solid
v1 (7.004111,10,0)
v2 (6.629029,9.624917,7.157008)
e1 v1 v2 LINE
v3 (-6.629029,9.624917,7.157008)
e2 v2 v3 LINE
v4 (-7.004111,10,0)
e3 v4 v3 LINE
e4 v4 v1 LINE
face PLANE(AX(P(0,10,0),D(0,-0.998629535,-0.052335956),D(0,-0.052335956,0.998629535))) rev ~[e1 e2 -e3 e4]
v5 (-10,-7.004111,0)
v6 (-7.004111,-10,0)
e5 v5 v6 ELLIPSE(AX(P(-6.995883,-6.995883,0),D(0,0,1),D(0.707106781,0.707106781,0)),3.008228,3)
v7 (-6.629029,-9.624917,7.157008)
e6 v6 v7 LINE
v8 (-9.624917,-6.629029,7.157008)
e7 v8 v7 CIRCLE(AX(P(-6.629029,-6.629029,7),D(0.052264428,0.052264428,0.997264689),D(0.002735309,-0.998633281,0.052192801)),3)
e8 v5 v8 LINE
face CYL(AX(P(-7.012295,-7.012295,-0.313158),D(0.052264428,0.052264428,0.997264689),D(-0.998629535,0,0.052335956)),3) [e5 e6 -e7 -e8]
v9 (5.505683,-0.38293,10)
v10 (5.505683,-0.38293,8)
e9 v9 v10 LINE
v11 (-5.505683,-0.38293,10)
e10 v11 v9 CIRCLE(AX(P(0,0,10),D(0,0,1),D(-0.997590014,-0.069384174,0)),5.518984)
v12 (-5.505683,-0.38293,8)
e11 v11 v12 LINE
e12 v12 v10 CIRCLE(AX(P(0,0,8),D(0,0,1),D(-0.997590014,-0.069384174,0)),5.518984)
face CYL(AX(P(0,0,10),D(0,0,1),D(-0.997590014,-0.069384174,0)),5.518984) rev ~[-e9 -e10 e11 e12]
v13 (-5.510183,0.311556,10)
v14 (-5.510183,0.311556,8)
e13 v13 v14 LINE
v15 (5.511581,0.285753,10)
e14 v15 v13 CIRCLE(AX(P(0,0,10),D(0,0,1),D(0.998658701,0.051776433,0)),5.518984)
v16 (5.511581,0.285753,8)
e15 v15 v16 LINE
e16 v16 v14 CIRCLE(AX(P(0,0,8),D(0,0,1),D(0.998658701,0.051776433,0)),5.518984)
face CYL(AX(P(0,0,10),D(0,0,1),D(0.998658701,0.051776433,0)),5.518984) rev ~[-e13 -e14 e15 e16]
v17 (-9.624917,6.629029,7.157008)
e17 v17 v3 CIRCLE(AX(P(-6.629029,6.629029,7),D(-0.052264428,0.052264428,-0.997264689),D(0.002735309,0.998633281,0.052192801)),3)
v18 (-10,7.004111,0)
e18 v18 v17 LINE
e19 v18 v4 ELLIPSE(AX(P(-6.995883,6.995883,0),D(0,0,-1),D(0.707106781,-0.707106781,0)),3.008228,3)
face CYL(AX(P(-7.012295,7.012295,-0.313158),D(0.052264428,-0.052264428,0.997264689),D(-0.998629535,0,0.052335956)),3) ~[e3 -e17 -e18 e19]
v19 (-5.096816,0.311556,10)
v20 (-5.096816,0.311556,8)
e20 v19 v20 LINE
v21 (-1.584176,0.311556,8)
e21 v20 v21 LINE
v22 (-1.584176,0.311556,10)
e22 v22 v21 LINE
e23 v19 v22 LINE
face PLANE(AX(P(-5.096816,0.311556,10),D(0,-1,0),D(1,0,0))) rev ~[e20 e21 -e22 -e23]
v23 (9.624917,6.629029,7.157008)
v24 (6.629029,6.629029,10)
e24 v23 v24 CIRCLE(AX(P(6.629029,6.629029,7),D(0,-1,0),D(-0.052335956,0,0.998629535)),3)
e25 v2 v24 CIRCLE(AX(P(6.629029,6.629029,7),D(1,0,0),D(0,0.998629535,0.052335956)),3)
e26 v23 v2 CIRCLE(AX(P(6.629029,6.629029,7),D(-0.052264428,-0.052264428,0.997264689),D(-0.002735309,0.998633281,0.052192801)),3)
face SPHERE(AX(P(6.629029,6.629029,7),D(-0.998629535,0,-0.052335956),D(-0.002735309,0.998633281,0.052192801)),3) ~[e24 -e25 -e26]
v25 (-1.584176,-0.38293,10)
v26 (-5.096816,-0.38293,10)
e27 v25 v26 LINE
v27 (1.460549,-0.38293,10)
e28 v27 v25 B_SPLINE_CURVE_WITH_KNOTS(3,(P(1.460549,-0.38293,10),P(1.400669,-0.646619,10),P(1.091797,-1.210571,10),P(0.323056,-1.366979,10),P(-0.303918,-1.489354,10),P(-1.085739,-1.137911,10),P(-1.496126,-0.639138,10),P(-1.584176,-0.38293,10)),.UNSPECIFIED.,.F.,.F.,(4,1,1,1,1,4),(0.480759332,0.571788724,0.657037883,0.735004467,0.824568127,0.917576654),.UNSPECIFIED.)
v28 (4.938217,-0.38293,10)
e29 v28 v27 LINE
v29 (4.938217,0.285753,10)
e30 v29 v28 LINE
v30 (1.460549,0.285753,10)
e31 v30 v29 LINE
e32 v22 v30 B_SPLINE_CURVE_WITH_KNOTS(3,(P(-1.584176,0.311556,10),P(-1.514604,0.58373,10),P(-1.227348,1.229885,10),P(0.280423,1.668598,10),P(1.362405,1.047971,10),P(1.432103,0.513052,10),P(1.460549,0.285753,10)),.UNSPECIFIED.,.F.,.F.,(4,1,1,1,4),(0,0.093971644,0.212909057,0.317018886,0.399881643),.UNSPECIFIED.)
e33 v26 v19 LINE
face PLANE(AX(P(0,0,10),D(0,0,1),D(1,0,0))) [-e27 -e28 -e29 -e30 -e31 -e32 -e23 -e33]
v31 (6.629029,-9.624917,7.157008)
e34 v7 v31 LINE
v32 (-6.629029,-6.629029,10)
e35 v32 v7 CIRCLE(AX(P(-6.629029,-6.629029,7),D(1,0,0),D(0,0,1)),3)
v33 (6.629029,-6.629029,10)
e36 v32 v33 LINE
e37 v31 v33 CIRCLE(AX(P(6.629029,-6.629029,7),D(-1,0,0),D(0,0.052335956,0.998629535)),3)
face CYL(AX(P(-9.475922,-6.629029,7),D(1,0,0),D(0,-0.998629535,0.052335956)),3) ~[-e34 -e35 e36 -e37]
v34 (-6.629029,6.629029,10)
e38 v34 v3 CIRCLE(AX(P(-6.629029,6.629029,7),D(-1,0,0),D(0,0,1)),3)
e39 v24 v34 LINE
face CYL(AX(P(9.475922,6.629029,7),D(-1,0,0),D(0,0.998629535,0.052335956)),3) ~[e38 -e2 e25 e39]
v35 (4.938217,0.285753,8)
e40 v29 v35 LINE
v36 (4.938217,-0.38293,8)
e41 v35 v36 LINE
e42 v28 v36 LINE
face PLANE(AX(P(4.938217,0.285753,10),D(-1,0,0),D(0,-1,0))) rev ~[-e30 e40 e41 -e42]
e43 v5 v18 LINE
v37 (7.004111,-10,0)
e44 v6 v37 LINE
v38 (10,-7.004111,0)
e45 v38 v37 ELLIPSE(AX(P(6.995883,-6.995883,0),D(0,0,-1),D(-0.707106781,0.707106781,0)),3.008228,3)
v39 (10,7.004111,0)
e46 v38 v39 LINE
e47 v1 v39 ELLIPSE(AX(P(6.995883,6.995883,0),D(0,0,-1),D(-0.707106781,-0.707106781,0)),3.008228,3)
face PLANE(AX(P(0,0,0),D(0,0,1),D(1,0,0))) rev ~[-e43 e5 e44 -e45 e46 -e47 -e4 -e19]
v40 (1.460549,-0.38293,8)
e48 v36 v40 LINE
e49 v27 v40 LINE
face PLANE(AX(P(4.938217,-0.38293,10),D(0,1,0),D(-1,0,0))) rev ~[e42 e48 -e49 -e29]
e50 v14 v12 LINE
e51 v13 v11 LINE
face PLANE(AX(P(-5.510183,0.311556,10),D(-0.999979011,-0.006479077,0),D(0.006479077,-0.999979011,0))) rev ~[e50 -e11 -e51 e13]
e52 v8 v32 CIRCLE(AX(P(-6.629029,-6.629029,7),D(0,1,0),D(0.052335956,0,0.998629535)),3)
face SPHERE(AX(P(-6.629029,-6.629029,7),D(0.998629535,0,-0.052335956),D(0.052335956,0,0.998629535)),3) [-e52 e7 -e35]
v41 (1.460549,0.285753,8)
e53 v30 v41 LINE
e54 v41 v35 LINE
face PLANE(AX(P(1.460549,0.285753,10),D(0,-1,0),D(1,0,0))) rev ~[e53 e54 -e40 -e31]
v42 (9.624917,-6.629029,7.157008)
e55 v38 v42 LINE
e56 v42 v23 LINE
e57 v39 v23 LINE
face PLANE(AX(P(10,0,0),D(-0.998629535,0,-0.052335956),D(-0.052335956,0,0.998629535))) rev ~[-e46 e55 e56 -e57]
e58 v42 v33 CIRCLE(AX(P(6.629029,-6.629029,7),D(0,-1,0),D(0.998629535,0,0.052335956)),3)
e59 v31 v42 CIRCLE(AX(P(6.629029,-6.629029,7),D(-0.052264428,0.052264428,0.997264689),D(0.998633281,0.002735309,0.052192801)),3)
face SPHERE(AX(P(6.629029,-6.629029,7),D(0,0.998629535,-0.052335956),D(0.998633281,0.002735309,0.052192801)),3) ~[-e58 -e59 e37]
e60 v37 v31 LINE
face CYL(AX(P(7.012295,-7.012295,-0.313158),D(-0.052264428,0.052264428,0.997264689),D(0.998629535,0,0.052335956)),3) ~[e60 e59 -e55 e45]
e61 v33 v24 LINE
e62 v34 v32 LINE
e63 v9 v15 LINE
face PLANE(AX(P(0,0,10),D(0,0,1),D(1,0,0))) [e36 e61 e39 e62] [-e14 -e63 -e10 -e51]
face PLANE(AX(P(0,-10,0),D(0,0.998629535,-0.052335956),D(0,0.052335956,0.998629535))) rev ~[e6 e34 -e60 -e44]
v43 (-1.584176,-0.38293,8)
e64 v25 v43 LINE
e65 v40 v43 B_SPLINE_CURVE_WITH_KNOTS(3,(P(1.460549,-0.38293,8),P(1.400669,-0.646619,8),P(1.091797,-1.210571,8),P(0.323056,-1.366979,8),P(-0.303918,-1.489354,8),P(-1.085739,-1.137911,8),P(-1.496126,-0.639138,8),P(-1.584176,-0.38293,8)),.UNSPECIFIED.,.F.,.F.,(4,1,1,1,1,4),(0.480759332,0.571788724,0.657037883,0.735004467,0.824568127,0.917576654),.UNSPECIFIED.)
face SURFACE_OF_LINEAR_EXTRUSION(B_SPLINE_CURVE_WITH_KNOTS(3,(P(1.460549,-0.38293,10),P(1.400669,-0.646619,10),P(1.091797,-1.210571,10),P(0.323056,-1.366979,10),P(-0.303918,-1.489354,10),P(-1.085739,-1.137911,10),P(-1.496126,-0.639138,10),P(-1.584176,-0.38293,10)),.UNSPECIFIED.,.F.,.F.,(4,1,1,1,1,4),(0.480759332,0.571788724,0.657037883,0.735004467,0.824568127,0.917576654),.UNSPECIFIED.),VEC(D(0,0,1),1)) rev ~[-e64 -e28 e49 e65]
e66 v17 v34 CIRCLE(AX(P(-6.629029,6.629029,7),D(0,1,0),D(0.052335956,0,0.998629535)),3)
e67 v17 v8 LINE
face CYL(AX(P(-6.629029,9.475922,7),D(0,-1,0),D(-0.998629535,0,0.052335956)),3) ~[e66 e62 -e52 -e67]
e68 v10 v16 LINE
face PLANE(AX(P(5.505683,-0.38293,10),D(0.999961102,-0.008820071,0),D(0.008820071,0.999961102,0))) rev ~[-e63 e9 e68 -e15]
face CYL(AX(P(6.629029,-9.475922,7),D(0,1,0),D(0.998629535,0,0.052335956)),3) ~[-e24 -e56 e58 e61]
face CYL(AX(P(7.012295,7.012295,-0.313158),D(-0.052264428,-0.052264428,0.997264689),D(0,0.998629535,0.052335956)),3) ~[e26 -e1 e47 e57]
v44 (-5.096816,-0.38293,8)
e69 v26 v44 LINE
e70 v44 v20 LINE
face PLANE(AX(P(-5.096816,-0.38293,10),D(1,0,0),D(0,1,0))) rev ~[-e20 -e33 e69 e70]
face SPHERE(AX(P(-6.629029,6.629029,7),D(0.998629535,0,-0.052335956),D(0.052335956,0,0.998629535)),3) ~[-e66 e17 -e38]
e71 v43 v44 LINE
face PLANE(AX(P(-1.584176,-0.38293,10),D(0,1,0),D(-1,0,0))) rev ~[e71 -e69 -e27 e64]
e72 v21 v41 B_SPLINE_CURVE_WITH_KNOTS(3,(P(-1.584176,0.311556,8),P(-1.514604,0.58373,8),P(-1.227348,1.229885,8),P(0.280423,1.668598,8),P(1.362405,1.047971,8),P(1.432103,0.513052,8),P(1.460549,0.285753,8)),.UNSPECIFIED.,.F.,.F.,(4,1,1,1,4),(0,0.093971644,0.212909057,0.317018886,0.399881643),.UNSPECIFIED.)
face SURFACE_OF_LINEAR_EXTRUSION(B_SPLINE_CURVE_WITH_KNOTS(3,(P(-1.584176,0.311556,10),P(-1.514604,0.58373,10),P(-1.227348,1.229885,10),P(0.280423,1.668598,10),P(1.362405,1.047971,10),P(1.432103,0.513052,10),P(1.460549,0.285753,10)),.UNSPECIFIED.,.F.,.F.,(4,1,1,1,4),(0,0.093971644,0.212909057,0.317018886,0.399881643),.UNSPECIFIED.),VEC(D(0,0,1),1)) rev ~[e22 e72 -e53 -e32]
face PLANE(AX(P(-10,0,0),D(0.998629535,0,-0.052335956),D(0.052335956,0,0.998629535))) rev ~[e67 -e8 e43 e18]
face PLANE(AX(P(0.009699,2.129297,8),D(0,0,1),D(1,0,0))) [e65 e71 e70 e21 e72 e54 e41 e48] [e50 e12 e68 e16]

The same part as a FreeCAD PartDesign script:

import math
import FreeCAD as App
import Part
import Sketcher

V = App.Vector
Q = App.Units.Quantity


def edges_at(feature, points):
    """Names of the edges that pass closest to the given points."""
    edges = feature.Shape.Edges
    near = lambda p: min(range(len(edges)), key=lambda i: edges[i].distToShape(Part.Vertex(*p))[0])
    return sorted({f"Edge{near(p) + 1}" for p in points})


def add_polygon(sketch, points):
    """Adds a closed chain of lines whose ends are joined by coincident constraints."""
    first, n = sketch.GeometryCount, len(points)
    for a, b in zip(points, points[1:] + points[:1]):
        sketch.addGeometry(Part.LineSegment(App.Vector(*a, 0), App.Vector(*b, 0)), False)
    for i in range(n):
        sketch.addConstraint(Sketcher.Constraint("Coincident", first + i, 2, first + (i + 1) % n, 1))

doc = App.newDocument("Part")
body = doc.addObject("PartDesign::Body", "Body")

# Sketch on XY plane
sketch1 = body.newObject("Sketcher::SketchObject", "Sketch")
sketch1.AttachmentSupport = (doc.getObject("XY_Plane"), [""])
sketch1.MapMode = "FlatFace"
add_polygon(sketch1, [(-10, 10), (-10, -10), (10, -10), (10, 10)])  # lines 0-3
sketch1.addConstraint([
    Sketcher.Constraint("Vertical", 0),
    Sketcher.Constraint("Horizontal", 1),
    Sketcher.Constraint("Vertical", 2),
    Sketcher.Constraint("Horizontal", 3),
    Sketcher.Constraint("Symmetric", 0, 2, 2, 2, -1, 1),
    Sketcher.Constraint("Equal", 3, 0),
    Sketcher.Constraint("DistanceX", 1, 1, 1, 2, Q("20 mm")),
])
pad1 = body.newObject("PartDesign::Pad", "Pad")
pad1.Profile = sketch1
pad1.Length = 10
pad1.TaperAngle = -3
doc.recompute()

fillet = body.newObject("PartDesign::Fillet", "Fillet")
fillet.Base = (pad1, edges_at(pad1, [
    (0, 9.476, 10),
    (9.738, 9.738, 5),
    (9.476, 0, 10),
    (9.738, -9.738, 5),
    (0, -9.476, 10),
    (-9.476, 0, 10),
    (-9.738, -9.738, 5),
    (-9.738, 9.738, 5),
]))
fillet.Radius = 3

# Sketch on XY plane
sketch2 = body.newObject("Sketcher::SketchObject", "Sketch001")
sketch2.AttachmentSupport = (doc.getObject("XY_Plane"), [""])
sketch2.MapMode = "FlatFace"
sketch2.AttachmentOffset = App.Placement(V(0, 0, 10), App.Rotation())
sketch2.addGeometry([
    Part.ArcOfCircle(Part.Circle(V(0, 0, 0), V(0, 0, 1), 5.518984), math.radians(2.967898), math.radians(176.763836)),  # 0
    Part.LineSegment(V(-5.510183, 0.311556, 0), V(-5.505683, -0.38293, 0)),  # 1
    Part.ArcOfCircle(Part.Circle(V(0, 0, 0), V(0, 0, 1), 5.518984), math.radians(-176.021383), math.radians(-3.978617)),  # 2
    Part.LineSegment(V(5.505683, -0.38293, 0), V(5.511581, 0.285753, 0)),  # 3
    Part.LineSegment(V(4.938217, -0.38293, 0), V(1.460549, -0.38293, 0)),  # 4
    Part.BSplineCurve([V(1.460549, -0.38293, 0), V(1.400669, -0.646619, 0), V(1.091797, -1.210571, 0), V(0.323056, -1.366979, 0), V(-0.303918, -1.489354, 0), V(-1.085739, -1.137911, 0), V(-1.496126, -0.639138, 0), V(-1.584176, -0.38293, 0)], [4, 1, 1, 1, 1, 4], [0.480759332, 0.571788724, 0.657037883, 0.735004467, 0.824568127, 0.917576654], False, 3, [1, 1, 1, 1, 1, 1, 1, 1], False),  # 5
    Part.LineSegment(V(-1.584176, -0.38293, 0), V(-5.096816, -0.38293, 0)),  # 6
    Part.LineSegment(V(-5.096816, -0.38293, 0), V(-5.096816, 0.311556, 0)),  # 7
    Part.LineSegment(V(-5.096816, 0.311556, 0), V(-1.584176, 0.311556, 0)),  # 8
    Part.BSplineCurve([V(-1.584176, 0.311556, 0), V(-1.514604, 0.58373, 0), V(-1.227348, 1.229885, 0), V(0.280423, 1.668598, 0), V(1.362405, 1.047971, 0), V(1.432103, 0.513052, 0), V(1.460549, 0.285753, 0)], [4, 1, 1, 1, 4], [0, 0.093971644, 0.212909057, 0.317018886, 0.399881643], False, 3, [1, 1, 1, 1, 1, 1, 1], False),  # 9
    Part.LineSegment(V(1.460549, 0.285753, 0), V(4.938217, 0.285753, 0)),  # 10
    Part.LineSegment(V(4.938217, 0.285753, 0), V(4.938217, -0.38293, 0)),  # 11
], False)
sketch2.addConstraint([
    Sketcher.Constraint("Block", 5),
    Sketcher.Constraint("Block", 9),
    Sketcher.Constraint("Coincident", 0, 2, 1, 1),
    Sketcher.Constraint("Coincident", 1, 2, 2, 1),
    Sketcher.Constraint("Coincident", 2, 2, 3, 1),
    Sketcher.Constraint("Coincident", 3, 2, 0, 1),
    Sketcher.Constraint("Coincident", 4, 2, 5, 1),
    Sketcher.Constraint("Coincident", 5, 2, 6, 1),
    Sketcher.Constraint("Coincident", 6, 2, 7, 1),
    Sketcher.Constraint("Coincident", 7, 2, 8, 1),
    Sketcher.Constraint("Coincident", 8, 2, 9, 1),
    Sketcher.Constraint("Coincident", 9, 2, 10, 1),
    Sketcher.Constraint("Coincident", 10, 2, 11, 1),
    Sketcher.Constraint("Coincident", 11, 2, 4, 1),
    Sketcher.Constraint("Horizontal", 4),
    Sketcher.Constraint("Horizontal", 6),
    Sketcher.Constraint("Vertical", 7),
    Sketcher.Constraint("Horizontal", 8),
    Sketcher.Constraint("Horizontal", 10),
    Sketcher.Constraint("Vertical", 11),
    Sketcher.Constraint("Coincident", 0, 3, -1, 1),
    Sketcher.Constraint("Coincident", 2, 3, -1, 1),
    Sketcher.Constraint("Equal", 0, 2),
    Sketcher.Constraint("Horizontal", 1, 2, 2, 2),
    Sketcher.Constraint("Horizontal", 2, 2, 4, 2),
    Sketcher.Constraint("Horizontal", 0, 2, 7, 2),
    Sketcher.Constraint("Horizontal", 3, 2, 10, 2),
    Sketcher.Constraint("Radius", 0, Q("5.518984 mm")),
    Sketcher.Constraint("DistanceX", 4, 2, 4, 1, Q("3.477669 mm")),
    Sketcher.Constraint("DistanceX", 6, 2, 6, 1, Q("3.51264 mm")),
])
pocket1 = body.newObject("PartDesign::Pocket", "Pocket")
pocket1.Profile = sketch2
pocket1.Length = 2

doc.recompute()
